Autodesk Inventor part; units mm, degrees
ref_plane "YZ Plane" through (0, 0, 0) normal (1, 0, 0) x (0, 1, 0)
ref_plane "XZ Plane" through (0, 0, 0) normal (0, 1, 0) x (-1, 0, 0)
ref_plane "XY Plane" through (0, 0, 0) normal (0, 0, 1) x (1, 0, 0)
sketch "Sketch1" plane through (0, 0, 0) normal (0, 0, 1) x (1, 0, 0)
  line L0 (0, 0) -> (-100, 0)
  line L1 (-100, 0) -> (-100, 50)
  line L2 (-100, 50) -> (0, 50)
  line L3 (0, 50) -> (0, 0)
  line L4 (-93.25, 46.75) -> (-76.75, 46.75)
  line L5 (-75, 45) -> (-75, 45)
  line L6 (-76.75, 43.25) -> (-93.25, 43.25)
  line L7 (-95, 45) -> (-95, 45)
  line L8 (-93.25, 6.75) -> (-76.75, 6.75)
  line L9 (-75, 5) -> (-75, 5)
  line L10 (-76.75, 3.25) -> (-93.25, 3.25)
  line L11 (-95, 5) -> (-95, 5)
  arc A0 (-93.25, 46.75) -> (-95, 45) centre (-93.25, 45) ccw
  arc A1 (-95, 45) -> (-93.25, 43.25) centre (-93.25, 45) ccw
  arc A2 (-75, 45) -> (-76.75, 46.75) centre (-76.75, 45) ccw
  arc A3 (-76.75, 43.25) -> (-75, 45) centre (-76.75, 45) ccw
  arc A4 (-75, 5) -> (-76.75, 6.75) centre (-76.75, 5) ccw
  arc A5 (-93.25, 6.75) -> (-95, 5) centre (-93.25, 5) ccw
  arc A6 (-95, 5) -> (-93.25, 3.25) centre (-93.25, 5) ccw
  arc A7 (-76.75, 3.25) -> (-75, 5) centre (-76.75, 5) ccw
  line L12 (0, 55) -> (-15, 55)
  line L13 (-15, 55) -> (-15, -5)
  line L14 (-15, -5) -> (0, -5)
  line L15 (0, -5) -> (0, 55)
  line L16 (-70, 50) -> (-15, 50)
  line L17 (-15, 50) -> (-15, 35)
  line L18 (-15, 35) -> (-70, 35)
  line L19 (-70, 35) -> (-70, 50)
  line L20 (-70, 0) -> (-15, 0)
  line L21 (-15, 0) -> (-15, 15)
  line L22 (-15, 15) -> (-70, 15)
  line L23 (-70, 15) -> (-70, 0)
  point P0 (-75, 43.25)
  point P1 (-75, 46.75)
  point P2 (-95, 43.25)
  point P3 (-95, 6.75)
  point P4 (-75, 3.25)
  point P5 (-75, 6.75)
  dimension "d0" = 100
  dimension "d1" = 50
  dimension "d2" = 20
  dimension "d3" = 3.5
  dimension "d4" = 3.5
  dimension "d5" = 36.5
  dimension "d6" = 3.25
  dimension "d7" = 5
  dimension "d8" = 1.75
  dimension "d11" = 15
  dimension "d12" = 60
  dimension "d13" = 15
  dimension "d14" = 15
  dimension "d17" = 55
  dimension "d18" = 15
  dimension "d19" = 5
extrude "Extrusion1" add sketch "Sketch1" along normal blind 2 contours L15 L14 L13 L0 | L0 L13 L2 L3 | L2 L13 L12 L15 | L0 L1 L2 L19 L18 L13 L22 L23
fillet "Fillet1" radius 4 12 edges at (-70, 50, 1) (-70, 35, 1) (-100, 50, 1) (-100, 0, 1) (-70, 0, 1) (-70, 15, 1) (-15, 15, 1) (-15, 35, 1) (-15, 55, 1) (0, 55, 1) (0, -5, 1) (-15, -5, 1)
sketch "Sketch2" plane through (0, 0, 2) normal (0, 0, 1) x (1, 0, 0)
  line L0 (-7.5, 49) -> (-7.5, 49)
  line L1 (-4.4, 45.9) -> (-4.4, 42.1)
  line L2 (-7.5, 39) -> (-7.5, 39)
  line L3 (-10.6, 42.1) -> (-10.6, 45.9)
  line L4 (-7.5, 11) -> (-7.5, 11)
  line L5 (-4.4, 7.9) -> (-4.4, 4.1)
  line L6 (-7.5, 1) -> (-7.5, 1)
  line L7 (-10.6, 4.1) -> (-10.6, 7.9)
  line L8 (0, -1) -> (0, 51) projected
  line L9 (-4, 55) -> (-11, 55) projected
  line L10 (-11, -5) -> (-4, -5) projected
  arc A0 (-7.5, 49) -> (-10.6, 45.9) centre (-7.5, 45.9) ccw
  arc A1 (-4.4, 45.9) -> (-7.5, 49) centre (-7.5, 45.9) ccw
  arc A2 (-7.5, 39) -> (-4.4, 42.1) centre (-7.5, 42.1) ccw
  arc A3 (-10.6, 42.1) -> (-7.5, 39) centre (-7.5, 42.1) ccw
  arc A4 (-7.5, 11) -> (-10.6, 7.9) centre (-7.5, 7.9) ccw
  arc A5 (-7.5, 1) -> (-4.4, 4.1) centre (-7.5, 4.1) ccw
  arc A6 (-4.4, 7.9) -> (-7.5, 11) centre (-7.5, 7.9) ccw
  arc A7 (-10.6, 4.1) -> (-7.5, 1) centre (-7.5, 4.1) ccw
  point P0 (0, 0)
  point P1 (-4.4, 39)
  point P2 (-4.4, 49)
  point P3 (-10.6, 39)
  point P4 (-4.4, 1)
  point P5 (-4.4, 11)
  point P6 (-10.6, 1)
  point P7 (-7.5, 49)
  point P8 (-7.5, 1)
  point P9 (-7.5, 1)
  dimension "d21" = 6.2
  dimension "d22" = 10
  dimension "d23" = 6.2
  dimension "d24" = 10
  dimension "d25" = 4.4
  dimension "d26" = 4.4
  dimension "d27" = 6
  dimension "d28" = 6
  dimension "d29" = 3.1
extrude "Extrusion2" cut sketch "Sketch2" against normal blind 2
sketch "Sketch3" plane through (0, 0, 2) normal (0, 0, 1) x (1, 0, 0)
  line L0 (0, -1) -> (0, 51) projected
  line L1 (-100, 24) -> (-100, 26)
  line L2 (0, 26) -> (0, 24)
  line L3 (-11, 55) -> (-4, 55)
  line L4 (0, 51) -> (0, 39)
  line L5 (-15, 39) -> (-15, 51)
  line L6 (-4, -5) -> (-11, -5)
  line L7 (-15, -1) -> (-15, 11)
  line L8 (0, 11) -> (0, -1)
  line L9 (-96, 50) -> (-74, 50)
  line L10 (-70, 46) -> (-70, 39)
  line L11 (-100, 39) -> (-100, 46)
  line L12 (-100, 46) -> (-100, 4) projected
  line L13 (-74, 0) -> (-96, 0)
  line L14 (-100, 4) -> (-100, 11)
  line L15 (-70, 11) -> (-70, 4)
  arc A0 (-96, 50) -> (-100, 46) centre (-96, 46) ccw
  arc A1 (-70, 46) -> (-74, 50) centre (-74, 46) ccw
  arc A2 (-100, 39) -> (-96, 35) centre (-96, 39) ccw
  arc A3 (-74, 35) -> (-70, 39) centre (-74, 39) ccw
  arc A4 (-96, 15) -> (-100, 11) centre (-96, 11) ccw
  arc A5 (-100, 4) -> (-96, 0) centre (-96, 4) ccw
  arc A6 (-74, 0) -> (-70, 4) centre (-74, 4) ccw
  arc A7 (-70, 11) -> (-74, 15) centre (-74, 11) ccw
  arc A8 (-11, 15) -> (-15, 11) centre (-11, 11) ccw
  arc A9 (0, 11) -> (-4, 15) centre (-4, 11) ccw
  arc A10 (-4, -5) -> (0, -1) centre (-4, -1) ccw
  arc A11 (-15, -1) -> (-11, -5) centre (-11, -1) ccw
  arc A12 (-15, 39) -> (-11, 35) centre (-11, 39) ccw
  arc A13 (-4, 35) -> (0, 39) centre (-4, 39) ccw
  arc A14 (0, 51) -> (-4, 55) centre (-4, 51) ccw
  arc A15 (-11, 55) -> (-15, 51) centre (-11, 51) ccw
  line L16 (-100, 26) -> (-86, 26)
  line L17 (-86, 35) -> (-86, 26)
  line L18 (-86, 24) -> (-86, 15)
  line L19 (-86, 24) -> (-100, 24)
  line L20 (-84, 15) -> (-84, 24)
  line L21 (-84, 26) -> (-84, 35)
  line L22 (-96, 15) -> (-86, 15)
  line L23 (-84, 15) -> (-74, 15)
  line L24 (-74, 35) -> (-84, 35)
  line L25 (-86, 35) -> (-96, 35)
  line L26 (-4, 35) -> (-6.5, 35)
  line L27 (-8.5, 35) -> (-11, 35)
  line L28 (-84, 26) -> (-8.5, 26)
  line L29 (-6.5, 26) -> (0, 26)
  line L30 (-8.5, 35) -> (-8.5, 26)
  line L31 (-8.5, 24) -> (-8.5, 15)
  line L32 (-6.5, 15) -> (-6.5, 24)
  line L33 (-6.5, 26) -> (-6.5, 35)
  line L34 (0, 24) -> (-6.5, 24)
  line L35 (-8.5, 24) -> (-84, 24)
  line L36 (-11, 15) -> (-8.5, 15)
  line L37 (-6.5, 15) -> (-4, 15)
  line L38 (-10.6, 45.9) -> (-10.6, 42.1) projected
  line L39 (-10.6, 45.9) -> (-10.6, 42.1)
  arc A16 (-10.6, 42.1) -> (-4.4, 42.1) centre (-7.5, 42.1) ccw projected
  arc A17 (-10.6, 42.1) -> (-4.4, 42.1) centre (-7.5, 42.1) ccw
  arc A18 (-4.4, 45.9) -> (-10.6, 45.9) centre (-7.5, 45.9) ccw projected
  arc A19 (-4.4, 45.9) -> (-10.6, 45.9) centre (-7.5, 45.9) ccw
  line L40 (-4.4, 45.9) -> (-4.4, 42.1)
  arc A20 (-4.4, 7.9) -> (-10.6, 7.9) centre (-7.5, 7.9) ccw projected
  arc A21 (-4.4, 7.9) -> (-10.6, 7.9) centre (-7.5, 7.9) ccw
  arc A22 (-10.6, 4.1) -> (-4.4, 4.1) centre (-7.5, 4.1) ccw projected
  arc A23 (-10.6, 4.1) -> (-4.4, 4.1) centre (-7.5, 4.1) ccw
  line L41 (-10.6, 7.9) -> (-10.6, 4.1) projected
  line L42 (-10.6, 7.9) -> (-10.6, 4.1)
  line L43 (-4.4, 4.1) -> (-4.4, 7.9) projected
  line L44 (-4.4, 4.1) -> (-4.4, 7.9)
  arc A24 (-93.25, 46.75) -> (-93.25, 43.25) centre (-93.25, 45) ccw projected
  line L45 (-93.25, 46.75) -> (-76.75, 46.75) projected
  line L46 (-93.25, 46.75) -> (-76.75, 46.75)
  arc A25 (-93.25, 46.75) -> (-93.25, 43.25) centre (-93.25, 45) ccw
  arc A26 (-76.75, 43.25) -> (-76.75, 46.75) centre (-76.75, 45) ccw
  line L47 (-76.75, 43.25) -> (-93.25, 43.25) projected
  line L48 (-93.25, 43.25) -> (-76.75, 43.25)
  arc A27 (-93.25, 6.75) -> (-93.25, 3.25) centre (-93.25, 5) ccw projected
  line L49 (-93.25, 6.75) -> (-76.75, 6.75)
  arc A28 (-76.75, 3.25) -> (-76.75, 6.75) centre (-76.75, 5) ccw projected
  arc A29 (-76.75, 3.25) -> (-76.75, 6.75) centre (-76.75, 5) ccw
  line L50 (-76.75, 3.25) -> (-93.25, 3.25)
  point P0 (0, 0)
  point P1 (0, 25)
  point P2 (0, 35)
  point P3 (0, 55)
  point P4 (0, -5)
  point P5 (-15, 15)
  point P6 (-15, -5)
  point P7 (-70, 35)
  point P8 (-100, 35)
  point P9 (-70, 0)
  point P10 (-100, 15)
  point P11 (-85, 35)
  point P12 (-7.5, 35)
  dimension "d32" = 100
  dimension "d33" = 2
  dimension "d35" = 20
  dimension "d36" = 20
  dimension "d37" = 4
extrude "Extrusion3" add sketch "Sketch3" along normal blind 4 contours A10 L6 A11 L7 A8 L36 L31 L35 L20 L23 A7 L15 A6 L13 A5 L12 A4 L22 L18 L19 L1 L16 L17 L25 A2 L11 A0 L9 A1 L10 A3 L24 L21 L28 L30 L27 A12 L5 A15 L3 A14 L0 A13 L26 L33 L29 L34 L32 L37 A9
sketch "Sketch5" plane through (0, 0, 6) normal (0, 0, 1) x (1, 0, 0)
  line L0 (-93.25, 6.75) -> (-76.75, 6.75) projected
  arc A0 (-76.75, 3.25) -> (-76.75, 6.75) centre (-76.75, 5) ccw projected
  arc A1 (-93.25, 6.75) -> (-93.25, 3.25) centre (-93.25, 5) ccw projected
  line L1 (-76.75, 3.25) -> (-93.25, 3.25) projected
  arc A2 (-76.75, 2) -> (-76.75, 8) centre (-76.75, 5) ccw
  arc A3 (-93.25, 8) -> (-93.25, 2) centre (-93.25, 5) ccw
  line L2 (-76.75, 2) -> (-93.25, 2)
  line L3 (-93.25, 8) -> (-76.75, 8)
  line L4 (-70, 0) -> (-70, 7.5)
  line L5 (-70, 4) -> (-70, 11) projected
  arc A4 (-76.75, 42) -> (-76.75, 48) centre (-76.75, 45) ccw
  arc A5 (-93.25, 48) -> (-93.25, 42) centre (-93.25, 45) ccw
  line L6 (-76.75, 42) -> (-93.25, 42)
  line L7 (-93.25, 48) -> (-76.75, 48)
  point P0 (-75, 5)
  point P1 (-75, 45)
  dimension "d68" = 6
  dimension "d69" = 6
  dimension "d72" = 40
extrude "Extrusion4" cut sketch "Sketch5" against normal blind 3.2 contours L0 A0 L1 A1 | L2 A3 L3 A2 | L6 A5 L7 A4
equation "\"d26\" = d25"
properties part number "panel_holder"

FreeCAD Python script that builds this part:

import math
import FreeCAD as App
import Part
import Sketcher
from FreeCAD import Vector


def edges_at(feature, points):
    """Names of the edges that pass closest to the given points."""
    edges = feature.Shape.Edges
    near = lambda p: min(range(len(edges)), key=lambda i: edges[i].distToShape(Part.Vertex(*p))[0])
    return sorted({f"Edge{near(p) + 1}" for p in points})


def add_polygon(sketch, points):
    """Adds a closed chain of lines whose ends are joined by coincident constraints."""
    first, n = sketch.GeometryCount, len(points)
    for a, b in zip(points, points[1:] + points[:1]):
        sketch.addGeometry(Part.LineSegment(App.Vector(*a, 0), App.Vector(*b, 0)), False)
    for i in range(n):
        sketch.addConstraint(Sketcher.Constraint("Coincident", first + i, 2, first + (i + 1) % n, 1))

doc = App.newDocument("Part")
body = doc.addObject("PartDesign::Body", "Body")

sketch1 = doc.addObject("Sketcher::SketchObject", "Sketch")
body.addObject(sketch1)
sketch1.AttachmentSupport = (doc.XY_Plane, [""])
sketch1.MapMode = "FlatFace"
add_polygon(sketch1, [(0, -5), (0, 55), (-15, 55), (-15, 35), (-70, 35), (-70, 50), (-100, 50), (-100, 0), (-70, 0), (-70, 15), (-15, 15), (-15, -5)])
sketch1.addGeometry(Part.LineSegment(Vector(-93.2, 46.8, 0), Vector(-76.8, 46.8, 0)), False)
sketch1.addGeometry(Part.ArcOfCircle(Part.Circle(Vector(-76.8, 45, 0), Vector(0, 0, 1), 1.8), math.radians(-90), math.radians(90)), False)
sketch1.addGeometry(Part.LineSegment(Vector(-76.8, 43.2, 0), Vector(-93.2, 43.2, 0)), False)
sketch1.addGeometry(Part.ArcOfCircle(Part.Circle(Vector(-93.2, 45, 0), Vector(0, 0, 1), 1.8), math.radians(90), math.radians(270)), False)
sketch1.addGeometry(Part.LineSegment(Vector(-93.2, 6.8, 0), Vector(-76.8, 6.8, 0)), False)
sketch1.addGeometry(Part.ArcOfCircle(Part.Circle(Vector(-76.8, 5, 0), Vector(0, 0, 1), 1.8), math.radians(-90), math.radians(90)), False)
sketch1.addGeometry(Part.LineSegment(Vector(-76.8, 3.2, 0), Vector(-93.2, 3.2, 0)), False)
sketch1.addGeometry(Part.ArcOfCircle(Part.Circle(Vector(-93.2, 5, 0), Vector(0, 0, 1), 1.8), math.radians(90), math.radians(270)), False)
sketch1.addConstraint([
    Sketcher.Constraint("Tangent", 12, 2, 13, 2),
    Sketcher.Constraint("Tangent", 13, 1, 14, 1),
    Sketcher.Constraint("Tangent", 14, 2, 15, 2),
    Sketcher.Constraint("Tangent", 15, 1, 12, 1),
    Sketcher.Constraint("Tangent", 16, 2, 17, 2),
    Sketcher.Constraint("Tangent", 17, 1, 18, 1),
    Sketcher.Constraint("Tangent", 18, 2, 19, 2),
    Sketcher.Constraint("Tangent", 19, 1, 16, 1),
    Sketcher.Constraint("Vertical", 0),
    Sketcher.Constraint("Horizontal", 1),
    Sketcher.Constraint("Vertical", 2),
    Sketcher.Constraint("Horizontal", 3),
    Sketcher.Constraint("Vertical", 4),
    Sketcher.Constraint("Horizontal", 5),
    Sketcher.Constraint("Vertical", 6),
    Sketcher.Constraint("Horizontal", 7),
    Sketcher.Constraint("Vertical", 8),
    Sketcher.Constraint("Horizontal", 9),
    Sketcher.Constraint("Vertical", 10),
    Sketcher.Constraint("Horizontal", 11),
    Sketcher.Constraint("Horizontal", 12),
    Sketcher.Constraint("Horizontal", 14),
    Sketcher.Constraint("Horizontal", 16),
    Sketcher.Constraint("Horizontal", 18),
    Sketcher.Constraint("Equal", 15, 17),
    Sketcher.Constraint("PointOnObject", 0, 2, -2),
    Sketcher.Constraint("PointOnObject", 6, 2, -1),
    Sketcher.Constraint("Vertical", 13, 3, 17, 3),
    Sketcher.Constraint("Vertical", 15, 3, 19, 3),
    Sketcher.Constraint("Vertical", 4, 2, 7, 2),
    Sketcher.Constraint("Vertical", 2, 2, 9, 2),
    Sketcher.Constraint("Equal", 11, 4),
    Sketcher.Constraint("Equal", 4, 8),
    Sketcher.Constraint("Equal", 2, 10),
    Sketcher.Constraint("DistanceX", 1, 2, 1, 1, 15.0),
    Sketcher.Constraint("DistanceX", 3, 2, 3, 1, 55.0),
    Sketcher.Constraint("DistanceY", 0, 1, 0, 2, 60.0),
    Sketcher.Constraint("DistanceY", 2, 2, 2, 1, 20.0),
    Sketcher.Constraint("Radius", 13, 1.75),
    Sketcher.Constraint("DistanceY", -1, 1, 17, 3, 5.0),
    Sketcher.Constraint("DistanceX", 5, 2, -1, 1, 100.0),
    Sketcher.Constraint("DistanceY", 13, 3, 4, 2, 5.0),
    Sketcher.Constraint("DistanceX", 12, 1, 12, 2, 16.5),
    Sketcher.Constraint("DistanceX", 13, 3, -1, 1, 76.75),
])
pad1 = doc.addObject("PartDesign::Pad", "Pad")
body.addObject(pad1)
pad1.Profile = sketch1
pad1.Length = 2
doc.recompute()

fillet = doc.addObject("PartDesign::Fillet", "Fillet")
body.addObject(fillet)
fillet.Base = (pad1, edges_at(pad1, [
    (-70, 50, 1),
    (-70, 35, 1),
    (-100, 50, 1),
    (-100, 0, 1),
    (-70, 0, 1),
    (-70, 15, 1),
    (-15, 15, 1),
    (-15, 35, 1),
    (-15, 55, 1),
    (0, 55, 1),
    (0, -5, 1),
    (-15, -5, 1),
]))
fillet.Radius = 4

sketch2 = doc.addObject("Sketcher::SketchObject", "Sketch001")
body.addObject(sketch2)
sketch2.AttachmentSupport = (doc.XY_Plane, [""])
sketch2.MapMode = "FlatFace"
sketch2.AttachmentOffset = App.Placement(Vector(0, 0, 2), App.Rotation())
sketch2.addGeometry([
    Part.LineSegment(Vector(-4.4, 42.1, 0), Vector(-4.4, 45.9, 0)),
    Part.ArcOfCircle(Part.Circle(Vector(-7.5, 45.9, 0), Vector(0, 0, 1), 3.1), math.radians(0), math.radians(180)),
    Part.LineSegment(Vector(-10.6, 45.9, 0), Vector(-10.6, 42.1, 0)),
    Part.ArcOfCircle(Part.Circle(Vector(-7.5, 42.1, 0), Vector(0, 0, 1), 3.1), math.radians(180), math.radians(360)),
    Part.LineSegment(Vector(-4.4, 4.1, 0), Vector(-4.4, 7.9, 0)),
    Part.ArcOfCircle(Part.Circle(Vector(-7.5, 7.9, 0), Vector(0, 0, 1), 3.1), math.radians(0), math.radians(180)),
    Part.LineSegment(Vector(-10.6, 7.9, 0), Vector(-10.6, 4.1, 0)),
    Part.ArcOfCircle(Part.Circle(Vector(-7.5, 4.1, 0), Vector(0, 0, 1), 3.1), math.radians(180), math.radians(360)),
], False)
sketch2.addConstraint([
    Sketcher.Constraint("Tangent", 0, 2, 1, 1),
    Sketcher.Constraint("Tangent", 1, 2, 2, 1),
    Sketcher.Constraint("Tangent", 2, 2, 3, 1),
    Sketcher.Constraint("Tangent", 3, 2, 0, 1),
    Sketcher.Constraint("Tangent", 4, 2, 5, 1),
    Sketcher.Constraint("Tangent", 5, 2, 6, 1),
    Sketcher.Constraint("Tangent", 6, 2, 7, 1),
    Sketcher.Constraint("Tangent", 7, 2, 4, 1),
    Sketcher.Constraint("Vertical", 0),
    Sketcher.Constraint("Vertical", 2),
    Sketcher.Constraint("Vertical", 4),
    Sketcher.Constraint("Vertical", 6),
    Sketcher.Constraint("Equal", 3, 5),
    Sketcher.Constraint("Vertical", 3, 3, 5, 3),
    Sketcher.Constraint("Equal", 2, 4),
    Sketcher.Constraint("Radius", 1, 3.1),
    Sketcher.Constraint("DistanceX", 0, 2, -1, 1, 4.4),
    Sketcher.Constraint("DistanceY", 0, 1, 0, 2, 3.8),
    Sketcher.Constraint("DistanceY", 5, 3, 1, 3, 38.0),
    Sketcher.Constraint("DistanceY", -1, 1, 1, 3, 45.9),
])
pocket1 = doc.addObject("PartDesign::Pocket", "Pocket")
body.addObject(pocket1)
pocket1.Profile = sketch2
pocket1.Length = 2

sketch3 = doc.addObject("Sketcher::SketchObject", "Sketch002")
body.addObject(sketch3)
sketch3.AttachmentSupport = (doc.XY_Plane, [""])
sketch3.MapMode = "FlatFace"
sketch3.AttachmentOffset = App.Placement(Vector(0, 0, 2), App.Rotation())
sketch3.addGeometry([
    Part.ArcOfCircle(Part.Circle(Vector(-4, -1, 0), Vector(0, 0, 1), 4), math.radians(-90), math.radians(0)),
    Part.LineSegment(Vector(0, -1, 0), Vector(0, 11, 0)),
    Part.ArcOfCircle(Part.Circle(Vector(-4, 11, 0), Vector(0, 0, 1), 4), math.radians(0), math.radians(90)),
    Part.LineSegment(Vector(-4, 15, 0), Vector(-6.5, 15, 0)),
    Part.LineSegment(Vector(-6.5, 15, 0), Vector(-6.5, 24, 0)),
    Part.LineSegment(Vector(-6.5, 24, 0), Vector(0, 24, 0)),
    Part.LineSegment(Vector(0, 24, 0), Vector(0, 26, 0)),
    Part.LineSegment(Vector(0, 26, 0), Vector(-6.5, 26, 0)),
    Part.LineSegment(Vector(-6.5, 26, 0), Vector(-6.5, 35, 0)),
    Part.LineSegment(Vector(-6.5, 35, 0), Vector(-4, 35, 0)),
    Part.ArcOfCircle(Part.Circle(Vector(-4, 39, 0), Vector(0, 0, 1), 4), math.radians(-90), math.radians(0)),
    Part.LineSegment(Vector(0, 39, 0), Vector(0, 51, 0)),
    Part.ArcOfCircle(Part.Circle(Vector(-4, 51, 0), Vector(0, 0, 1), 4), math.radians(0), math.radians(90)),
    Part.LineSegment(Vector(-4, 55, 0), Vector(-11, 55, 0)),
    Part.ArcOfCircle(Part.Circle(Vector(-11, 51, 0), Vector(0, 0, 1), 4), math.radians(90), math.radians(180)),
    Part.LineSegment(Vector(-15, 51, 0), Vector(-15, 39, 0)),
    Part.ArcOfCircle(Part.Circle(Vector(-11, 39, 0), Vector(0, 0, 1), 4), math.radians(180), math.radians(270)),
    Part.LineSegment(Vector(-11, 35, 0), Vector(-8.5, 35, 0)),
    Part.LineSegment(Vector(-8.5, 35, 0), Vector(-8.5, 26, 0)),
    Part.LineSegment(Vector(-8.5, 26, 0), Vector(-84, 26, 0)),
    Part.LineSegment(Vector(-84, 26, 0), Vector(-84, 35, 0)),
    Part.LineSegment(Vector(-84, 35, 0), Vector(-74, 35, 0)),
    Part.ArcOfCircle(Part.Circle(Vector(-74, 39, 0), Vector(0, 0, 1), 4), math.radians(-90), math.radians(0)),
    Part.LineSegment(Vector(-70, 39, 0), Vector(-70, 46, 0)),
    Part.ArcOfCircle(Part.Circle(Vector(-74, 46, 0), Vector(0, 0, 1), 4), math.radians(0), math.radians(90)),
    Part.LineSegment(Vector(-74, 50, 0), Vector(-96, 50, 0)),
    Part.ArcOfCircle(Part.Circle(Vector(-96, 46, 0), Vector(0, 0, 1), 4), math.radians(90), math.radians(180)),
    Part.LineSegment(Vector(-100, 46, 0), Vector(-100, 39, 0)),
    Part.ArcOfCircle(Part.Circle(Vector(-96, 39, 0), Vector(0, 0, 1), 4), math.radians(180), math.radians(270)),
    Part.LineSegment(Vector(-96, 35, 0), Vector(-86, 35, 0)),
    Part.LineSegment(Vector(-86, 35, 0), Vector(-86, 26, 0)),
    Part.LineSegment(Vector(-86, 26, 0), Vector(-100, 26, 0)),
    Part.LineSegment(Vector(-100, 26, 0), Vector(-100, 24, 0)),
    Part.LineSegment(Vector(-100, 24, 0), Vector(-86, 24, 0)),
    Part.LineSegment(Vector(-86, 24, 0), Vector(-86, 15, 0)),
    Part.LineSegment(Vector(-86, 15, 0), Vector(-96, 15, 0)),
    Part.ArcOfCircle(Part.Circle(Vector(-96, 11, 0), Vector(0, 0, 1), 4), math.radians(90), math.radians(180)),
    Part.LineSegment(Vector(-100, 11, 0), Vector(-100, 4, 0)),
    Part.ArcOfCircle(Part.Circle(Vector(-96, 4, 0), Vector(0, 0, 1), 4), math.radians(180), math.radians(270)),
    Part.LineSegment(Vector(-96, 0, 0), Vector(-74, 0, 0)),
    Part.ArcOfCircle(Part.Circle(Vector(-74, 4, 0), Vector(0, 0, 1), 4), math.radians(-90), math.radians(0)),
    Part.LineSegment(Vector(-70, 4, 0), Vector(-70, 11, 0)),
    Part.ArcOfCircle(Part.Circle(Vector(-74, 11, 0), Vector(0, 0, 1), 4), math.radians(0), math.radians(90)),
    Part.LineSegment(Vector(-74, 15, 0), Vector(-84, 15, 0)),
    Part.LineSegment(Vector(-84, 15, 0), Vector(-84, 24, 0)),
    Part.LineSegment(Vector(-84, 24, 0), Vector(-8.5, 24, 0)),
    Part.LineSegment(Vector(-8.5, 24, 0), Vector(-8.5, 15, 0)),
    Part.LineSegment(Vector(-8.5, 15, 0), Vector(-11, 15, 0)),
    Part.ArcOfCircle(Part.Circle(Vector(-11, 11, 0), Vector(0, 0, 1), 4), math.radians(90), math.radians(180)),
    Part.LineSegment(Vector(-15, 11, 0), Vector(-15, -1, 0)),
    Part.ArcOfCircle(Part.Circle(Vector(-11, -1, 0), Vector(0, 0, 1), 4), math.radians(180), math.radians(270)),
    Part.LineSegment(Vector(-11, -5, 0), Vector(-4, -5, 0)),
    Part.ArcOfCircle(Part.Circle(Vector(-93.2, 5, 0), Vector(0, 0, 1), 1.8), math.radians(90), math.radians(270)),
    Part.LineSegment(Vector(-93.2, 6.8, 0), Vector(-76.8, 6.8, 0)),
    Part.ArcOfCircle(Part.Circle(Vector(-76.8, 5, 0), Vector(0, 0, 1), 1.8), math.radians(-90), math.radians(90)),
    Part.LineSegment(Vector(-76.8, 3.2, 0), Vector(-93.2, 3.2, 0)),
    Part.ArcOfCircle(Part.Circle(Vector(-7.5, 7.9, 0), Vector(0, 0, 1), 3.1), math.radians(0), math.radians(180)),
    Part.LineSegment(Vector(-4.4, 7.9, 0), Vector(-4.4, 4.1, 0)),
    Part.ArcOfCircle(Part.Circle(Vector(-7.5, 4.1, 0), Vector(0, 0, 1), 3.1), math.radians(180), math.radians(360)),
    Part.LineSegment(Vector(-10.6, 4.1, 0), Vector(-10.6, 7.9, 0)),
    Part.ArcOfCircle(Part.Circle(Vector(-93.2, 45, 0), Vector(0, 0, 1), 1.8), math.radians(90), math.radians(270)),
    Part.LineSegment(Vector(-93.2, 46.8, 0), Vector(-76.8, 46.8, 0)),
    Part.ArcOfCircle(Part.Circle(Vector(-76.8, 45, 0), Vector(0, 0, 1), 1.8), math.radians(-90), math.radians(90)),
    Part.LineSegment(Vector(-76.8, 43.2, 0), Vector(-93.2, 43.2, 0)),
    Part.LineSegment(Vector(-10.6, 42.1, 0), Vector(-10.6, 45.9, 0)),
    Part.ArcOfCircle(Part.Circle(Vector(-7.5, 45.9, 0), Vector(0, 0, 1), 3.1), math.radians(0), math.radians(180)),
    Part.LineSegment(Vector(-4.4, 45.9, 0), Vector(-4.4, 42.1, 0)),
    Part.ArcOfCircle(Part.Circle(Vector(-7.5, 42.1, 0), Vector(0, 0, 1), 3.1), math.radians(180), math.radians(360)),
], False)
sketch3.addConstraint([
    Sketcher.Constraint("Tangent", 0, 2, 1, 1),
    Sketcher.Constraint("Tangent", 1, 2, 2, 1),
    Sketcher.Constraint("Tangent", 2, 2, 3, 1),
    Sketcher.Constraint("Coincident", 3, 2, 4, 1),
    Sketcher.Constraint("Coincident", 4, 2, 5, 1),
    Sketcher.Constraint("Coincident", 5, 2, 6, 1),
    Sketcher.Constraint("Coincident", 6, 2, 7, 1),
    Sketcher.Constraint("Coincident", 7, 2, 8, 1),
    Sketcher.Constraint("Coincident", 8, 2, 9, 1),
    Sketcher.Constraint("Tangent", 9, 2, 10, 1),
    Sketcher.Constraint("Tangent", 10, 2, 11, 1),
    Sketcher.Constraint("Tangent", 11, 2, 12, 1),
    Sketcher.Constraint("Tangent", 12, 2, 13, 1),
    Sketcher.Constraint("Tangent", 13, 2, 14, 1),
    Sketcher.Constraint("Tangent", 14, 2, 15, 1),
    Sketcher.Constraint("Tangent", 15, 2, 16, 1),
    Sketcher.Constraint("Tangent", 16, 2, 17, 1),
    Sketcher.Constraint("Coincident", 17, 2, 18, 1),
    Sketcher.Constraint("Coincident", 18, 2, 19, 1),
    Sketcher.Constraint("Coincident", 19, 2, 20, 1),
    Sketcher.Constraint("Coincident", 20, 2, 21, 1),
    Sketcher.Constraint("Tangent", 21, 2, 22, 1),
    Sketcher.Constraint("Tangent", 22, 2, 23, 1),
    Sketcher.Constraint("Tangent", 23, 2, 24, 1),
    Sketcher.Constraint("Tangent", 24, 2, 25, 1),
    Sketcher.Constraint("Tangent", 25, 2, 26, 1),
    Sketcher.Constraint("Tangent", 26, 2, 27, 1),
    Sketcher.Constraint("Tangent", 27, 2, 28, 1),
    Sketcher.Constraint("Tangent", 28, 2, 29, 1),
    Sketcher.Constraint("Coincident", 29, 2, 30, 1),
    Sketcher.Constraint("Coincident", 30, 2, 31, 1),
    Sketcher.Constraint("Coincident", 31, 2, 32, 1),
    Sketcher.Constraint("Coincident", 32, 2, 33, 1),
    Sketcher.Constraint("Coincident", 33, 2, 34, 1),
    Sketcher.Constraint("Coincident", 34, 2, 35, 1),
    Sketcher.Constraint("Tangent", 35, 2, 36, 1),
    Sketcher.Constraint("Tangent", 36, 2, 37, 1),
    Sketcher.Constraint("Tangent", 37, 2, 38, 1),
    Sketcher.Constraint("Tangent", 38, 2, 39, 1),
    Sketcher.Constraint("Tangent", 39, 2, 40, 1),
    Sketcher.Constraint("Tangent", 40, 2, 41, 1),
    Sketcher.Constraint("Tangent", 41, 2, 42, 1),
    Sketcher.Constraint("Tangent", 42, 2, 43, 1),
    Sketcher.Constraint("Coincident", 43, 2, 44, 1),
    Sketcher.Constraint("Coincident", 44, 2, 45, 1),
    Sketcher.Constraint("Coincident", 45, 2, 46, 1),
    Sketcher.Constraint("Coincident", 46, 2, 47, 1),
    Sketcher.Constraint("Tangent", 47, 2, 48, 1),
    Sketcher.Constraint("Tangent", 48, 2, 49, 1),
    Sketcher.Constraint("Tangent", 49, 2, 50, 1),
    Sketcher.Constraint("Tangent", 50, 2, 51, 1),
    Sketcher.Constraint("Tangent", 51, 2, 0, 1),
    Sketcher.Constraint("Tangent", 52, 1, 53, 1),
    Sketcher.Constraint("Tangent", 53, 2, 54, 2),
    Sketcher.Constraint("Tangent", 54, 1, 55, 1),
    Sketcher.Constraint("Tangent", 55, 2, 52, 2),
    Sketcher.Constraint("Tangent", 56, 1, 57, 1),
    Sketcher.Constraint("Tangent", 57, 2, 58, 2),
    Sketcher.Constraint("Tangent", 58, 1, 59, 1),
    Sketcher.Constraint("Tangent", 59, 2, 56, 2),
    Sketcher.Constraint("Tangent", 60, 1, 61, 1),
    Sketcher.Constraint("Tangent", 61, 2, 62, 2),
    Sketcher.Constraint("Tangent", 62, 1, 63, 1),
    Sketcher.Constraint("Tangent", 63, 2, 60, 2),
    Sketcher.Constraint("Tangent", 64, 2, 65, 2),
    Sketcher.Constraint("Tangent", 65, 1, 66, 1),
    Sketcher.Constraint("Tangent", 66, 2, 67, 2),
    Sketcher.Constraint("Tangent", 67, 1, 64, 1),
    Sketcher.Constraint("Vertical", 1),
    Sketcher.Constraint("Horizontal", 3),
    Sketcher.Constraint("Vertical", 4),
    Sketcher.Constraint("Horizontal", 5),
    Sketcher.Constraint("Vertical", 6),
    Sketcher.Constraint("Horizontal", 7),
    Sketcher.Constraint("Vertical", 8),
    Sketcher.Constraint("Horizontal", 9),
    Sketcher.Constraint("Vertical", 11),
    Sketcher.Constraint("Horizontal", 13),
    Sketcher.Constraint("Vertical", 15),
    Sketcher.Constraint("Horizontal", 17),
    Sketcher.Constraint("Vertical", 18),
    Sketcher.Constraint("Horizontal", 19),
    Sketcher.Constraint("Vertical", 20),
    Sketcher.Constraint("Horizontal", 21),
    Sketcher.Constraint("Vertical", 23),
    Sketcher.Constraint("Horizontal", 25),
    Sketcher.Constraint("Vertical", 27),
    Sketcher.Constraint("Horizontal", 29),
    Sketcher.Constraint("Vertical", 30),
    Sketcher.Constraint("Horizontal", 31),
    Sketcher.Constraint("Vertical", 32),
    Sketcher.Constraint("Horizontal", 33),
    Sketcher.Constraint("Vertical", 34),
    Sketcher.Constraint("Horizontal", 35),
    Sketcher.Constraint("Vertical", 37),
    Sketcher.Constraint("Horizontal", 39),
    Sketcher.Constraint("Vertical", 41),
    Sketcher.Constraint("Horizontal", 43),
    Sketcher.Constraint("Vertical", 44),
    Sketcher.Constraint("Horizontal", 45),
    Sketcher.Constraint("Vertical", 46),
    Sketcher.Constraint("Horizontal", 47),
    Sketcher.Constraint("Vertical", 49),
    Sketcher.Constraint("Horizontal", 51),
    Sketcher.Constraint("Horizontal", 53),
    Sketcher.Constraint("Horizontal", 55),
    Sketcher.Constraint("Vertical", 57),
    Sketcher.Constraint("Vertical", 59),
    Sketcher.Constraint("Horizontal", 61),
    Sketcher.Constraint("Horizontal", 63),
    Sketcher.Constraint("Vertical", 64),
    Sketcher.Constraint("Vertical", 66),
    Sketcher.Constraint("Equal", 0, 2),
    Sketcher.Constraint("Equal", 2, 10),
    Sketcher.Constraint("Equal", 10, 12),
    Sketcher.Constraint("Equal", 12, 14),
    Sketcher.Constraint("Equal", 14, 16),
    Sketcher.Constraint("Equal", 16, 22),
    Sketcher.Constraint("Equal", 22, 24),
    Sketcher.Constraint("Equal", 24, 26),
    Sketcher.Constraint("Equal", 26, 28),
    Sketcher.Constraint("Equal", 28, 36),
    Sketcher.Constraint("Equal", 36, 38),
    Sketcher.Constraint("Equal", 38, 40),
    Sketcher.Constraint("Equal", 40, 42),
    Sketcher.Constraint("Equal", 42, 48),
    Sketcher.Constraint("Equal", 48, 50),
    Sketcher.Constraint("Equal", 54, 60),
    Sketcher.Constraint("Equal", 58, 65),
    Sketcher.Constraint("PointOnObject", 0, 2, -2),
    Sketcher.Constraint("PointOnObject", 5, 2, -2),
    Sketcher.Constraint("PointOnObject", 10, 2, -2),
    Sketcher.Constraint("PointOnObject", 38, 2, -1),
    Sketcher.Constraint("Horizontal", 10, 3, 16, 3),
    Sketcher.Constraint("Horizontal", 16, 3, 22, 3),
    Sketcher.Constraint("Horizontal", 22, 3, 28, 3),
    Sketcher.Constraint("Horizontal", 2, 3, 36, 3),
    Sketcher.Constraint("Horizontal", 36, 3, 42, 3),
    Sketcher.Constraint("Horizontal", 42, 3, 48, 3),
    Sketcher.Constraint("Horizontal", 7, 2, 18, 2),
    Sketcher.Constraint("Horizontal", 19, 2, 30, 2),
    Sketcher.Constraint("Horizontal", 5, 2, 32, 2),
    Sketcher.Constraint("Horizontal", 33, 2, 44, 2),
    Sketcher.Constraint("Vertical", 28, 3, 36, 3),
    Sketcher.Constraint("Vertical", 24, 3, 40, 3),
    Sketcher.Constraint("Vertical", 16, 3, 48, 3),
    Sketcher.Constraint("Vertical", 52, 3, 60, 3),
    Sketcher.Constraint("Vertical", 54, 3, 62, 3),
    Sketcher.Constraint("Vertical", 58, 3, 65, 3),
    Sketcher.Constraint("Vertical", 4, 2, 7, 2),
    Sketcher.Constraint("Vertical", 27, 2, 31, 2),
    Sketcher.Constraint("Vertical", 30, 2, 33, 2),
    Sketcher.Constraint("Vertical", 20, 2, 43, 2),
    Sketcher.Constraint("Vertical", 18, 2, 45, 2),
    Sketcher.Constraint("Equal", 9, 17),
    Sketcher.Constraint("Equal", 21, 29),
    Sketcher.Constraint("Equal", 4, 8),
    Sketcher.Constraint("Equal", 1, 11),
    Sketcher.Constraint("Equal", 51, 23),
    Sketcher.Constraint("Equal", 27, 37),
    Sketcher.Constraint("Equal", 59, 64),
    Sketcher.Constraint("Radius", 0, 4.0),
    Sketcher.Constraint("DistanceY", 6, 1, 6, 2, 2.0),
    Sketcher.Constraint("DistanceX", 26, 2, -1, 1, 100.0),
    Sketcher.Constraint("Radius", 56, 3.1),
    Sketcher.Constraint("DistanceX", 13, 2, 13, 1, 7.0),
    Sketcher.Constraint("DistanceX", 21, 1, 21, 2, 10.0),
    Sketcher.Constraint("DistanceX", 25, 2, 25, 1, 22.0),
    Sketcher.Constraint("DistanceY", 1, 1, 1, 2, 12.0),
    Sketcher.Constraint("DistanceY", 4, 1, 4, 2, 9.0),
    Sketcher.Constraint("Radius", 52, 1.75),
    Sketcher.Constraint("DistanceX", 3, 2, 3, 1, 2.5),
    Sketcher.Constraint("DistanceX", 53, 1, 53, 2, 16.5),
    Sketcher.Constraint("DistanceY", 57, 2, 57, 1, 3.8),
    Sketcher.Constraint("DistanceY", -1, 1, 52, 3, 5.0),
    Sketcher.Constraint("DistanceY", -1, 1, 60, 3, 45.0),
    Sketcher.Constraint("DistanceX", 56, 3, -1, 1, 7.5),
    Sketcher.Constraint("DistanceY", -1, 1, 56, 3, 7.9),
    Sketcher.Constraint("DistanceY", -1, 1, 65, 3, 45.9),
    Sketcher.Constraint("DistanceX", 52, 3, -1, 1, 93.25),
])
pad2 = doc.addObject("PartDesign::Pad", "Pad001")
body.addObject(pad2)
pad2.Profile = sketch3
pad2.Length = 4

sketch4 = doc.addObject("Sketcher::SketchObject", "Sketch003")
body.addObject(sketch4)
sketch4.AttachmentSupport = (doc.XY_Plane, [""])
sketch4.MapMode = "FlatFace"
sketch4.AttachmentOffset = App.Placement(Vector(0, 0, 6), App.Rotation())
sketch4.addGeometry([
    Part.LineSegment(Vector(-93.2, 2, 0), Vector(-76.8, 2, 0)),
    Part.ArcOfCircle(Part.Circle(Vector(-76.8, 5, 0), Vector(0, 0, 1), 3), math.radians(-90), math.radians(90)),
    Part.LineSegment(Vector(-76.8, 8, 0), Vector(-93.2, 8, 0)),
    Part.ArcOfCircle(Part.Circle(Vector(-93.2, 5, 0), Vector(0, 0, 1), 3), math.radians(90), math.radians(270)),
    Part.LineSegment(Vector(-93.2, 42, 0), Vector(-76.8, 42, 0)),
    Part.ArcOfCircle(Part.Circle(Vector(-76.8, 45, 0), Vector(0, 0, 1), 3), math.radians(-90), math.radians(90)),
    Part.LineSegment(Vector(-76.8, 48, 0), Vector(-93.2, 48, 0)),
    Part.ArcOfCircle(Part.Circle(Vector(-93.2, 45, 0), Vector(0, 0, 1), 3), math.radians(90), math.radians(270)),
], False)
sketch4.addConstraint([
    Sketcher.Constraint("Tangent", 0, 2, 1, 1),
    Sketcher.Constraint("Tangent", 1, 2, 2, 1),
    Sketcher.Constraint("Tangent", 2, 2, 3, 1),
    Sketcher.Constraint("Tangent", 3, 2, 0, 1),
    Sketcher.Constraint("Tangent", 4, 2, 5, 1),
    Sketcher.Constraint("Tangent", 5, 2, 6, 1),
    Sketcher.Constraint("Tangent", 6, 2, 7, 1),
    Sketcher.Constraint("Tangent", 7, 2, 4, 1),
    Sketcher.Constraint("Horizontal", 0),
    Sketcher.Constraint("Horizontal", 2),
    Sketcher.Constraint("Horizontal", 4),
    Sketcher.Constraint("Horizontal", 6),
    Sketcher.Constraint("Equal", 3, 5),
    Sketcher.Constraint("Vertical", 1, 3, 5, 3),
    Sketcher.Constraint("Vertical", 3, 3, 7, 3),
    Sketcher.Constraint("Radius", 1, 3.0),
    Sketcher.Constraint("DistanceY", 1, 3, 5, 3, 40.0),
    Sketcher.Constraint("DistanceX", 0, 1, 0, 2, 16.5),
    Sketcher.Constraint("DistanceY", -1, 1, 1, 3, 5.0),
    Sketcher.Constraint("DistanceX", 1, 3, -1, 1, 76.75),
])
pocket2 = doc.addObject("PartDesign::Pocket", "Pocket001")
body.addObject(pocket2)
pocket2.Profile = sketch4
pocket2.Length = 3.2

doc.recompute()
